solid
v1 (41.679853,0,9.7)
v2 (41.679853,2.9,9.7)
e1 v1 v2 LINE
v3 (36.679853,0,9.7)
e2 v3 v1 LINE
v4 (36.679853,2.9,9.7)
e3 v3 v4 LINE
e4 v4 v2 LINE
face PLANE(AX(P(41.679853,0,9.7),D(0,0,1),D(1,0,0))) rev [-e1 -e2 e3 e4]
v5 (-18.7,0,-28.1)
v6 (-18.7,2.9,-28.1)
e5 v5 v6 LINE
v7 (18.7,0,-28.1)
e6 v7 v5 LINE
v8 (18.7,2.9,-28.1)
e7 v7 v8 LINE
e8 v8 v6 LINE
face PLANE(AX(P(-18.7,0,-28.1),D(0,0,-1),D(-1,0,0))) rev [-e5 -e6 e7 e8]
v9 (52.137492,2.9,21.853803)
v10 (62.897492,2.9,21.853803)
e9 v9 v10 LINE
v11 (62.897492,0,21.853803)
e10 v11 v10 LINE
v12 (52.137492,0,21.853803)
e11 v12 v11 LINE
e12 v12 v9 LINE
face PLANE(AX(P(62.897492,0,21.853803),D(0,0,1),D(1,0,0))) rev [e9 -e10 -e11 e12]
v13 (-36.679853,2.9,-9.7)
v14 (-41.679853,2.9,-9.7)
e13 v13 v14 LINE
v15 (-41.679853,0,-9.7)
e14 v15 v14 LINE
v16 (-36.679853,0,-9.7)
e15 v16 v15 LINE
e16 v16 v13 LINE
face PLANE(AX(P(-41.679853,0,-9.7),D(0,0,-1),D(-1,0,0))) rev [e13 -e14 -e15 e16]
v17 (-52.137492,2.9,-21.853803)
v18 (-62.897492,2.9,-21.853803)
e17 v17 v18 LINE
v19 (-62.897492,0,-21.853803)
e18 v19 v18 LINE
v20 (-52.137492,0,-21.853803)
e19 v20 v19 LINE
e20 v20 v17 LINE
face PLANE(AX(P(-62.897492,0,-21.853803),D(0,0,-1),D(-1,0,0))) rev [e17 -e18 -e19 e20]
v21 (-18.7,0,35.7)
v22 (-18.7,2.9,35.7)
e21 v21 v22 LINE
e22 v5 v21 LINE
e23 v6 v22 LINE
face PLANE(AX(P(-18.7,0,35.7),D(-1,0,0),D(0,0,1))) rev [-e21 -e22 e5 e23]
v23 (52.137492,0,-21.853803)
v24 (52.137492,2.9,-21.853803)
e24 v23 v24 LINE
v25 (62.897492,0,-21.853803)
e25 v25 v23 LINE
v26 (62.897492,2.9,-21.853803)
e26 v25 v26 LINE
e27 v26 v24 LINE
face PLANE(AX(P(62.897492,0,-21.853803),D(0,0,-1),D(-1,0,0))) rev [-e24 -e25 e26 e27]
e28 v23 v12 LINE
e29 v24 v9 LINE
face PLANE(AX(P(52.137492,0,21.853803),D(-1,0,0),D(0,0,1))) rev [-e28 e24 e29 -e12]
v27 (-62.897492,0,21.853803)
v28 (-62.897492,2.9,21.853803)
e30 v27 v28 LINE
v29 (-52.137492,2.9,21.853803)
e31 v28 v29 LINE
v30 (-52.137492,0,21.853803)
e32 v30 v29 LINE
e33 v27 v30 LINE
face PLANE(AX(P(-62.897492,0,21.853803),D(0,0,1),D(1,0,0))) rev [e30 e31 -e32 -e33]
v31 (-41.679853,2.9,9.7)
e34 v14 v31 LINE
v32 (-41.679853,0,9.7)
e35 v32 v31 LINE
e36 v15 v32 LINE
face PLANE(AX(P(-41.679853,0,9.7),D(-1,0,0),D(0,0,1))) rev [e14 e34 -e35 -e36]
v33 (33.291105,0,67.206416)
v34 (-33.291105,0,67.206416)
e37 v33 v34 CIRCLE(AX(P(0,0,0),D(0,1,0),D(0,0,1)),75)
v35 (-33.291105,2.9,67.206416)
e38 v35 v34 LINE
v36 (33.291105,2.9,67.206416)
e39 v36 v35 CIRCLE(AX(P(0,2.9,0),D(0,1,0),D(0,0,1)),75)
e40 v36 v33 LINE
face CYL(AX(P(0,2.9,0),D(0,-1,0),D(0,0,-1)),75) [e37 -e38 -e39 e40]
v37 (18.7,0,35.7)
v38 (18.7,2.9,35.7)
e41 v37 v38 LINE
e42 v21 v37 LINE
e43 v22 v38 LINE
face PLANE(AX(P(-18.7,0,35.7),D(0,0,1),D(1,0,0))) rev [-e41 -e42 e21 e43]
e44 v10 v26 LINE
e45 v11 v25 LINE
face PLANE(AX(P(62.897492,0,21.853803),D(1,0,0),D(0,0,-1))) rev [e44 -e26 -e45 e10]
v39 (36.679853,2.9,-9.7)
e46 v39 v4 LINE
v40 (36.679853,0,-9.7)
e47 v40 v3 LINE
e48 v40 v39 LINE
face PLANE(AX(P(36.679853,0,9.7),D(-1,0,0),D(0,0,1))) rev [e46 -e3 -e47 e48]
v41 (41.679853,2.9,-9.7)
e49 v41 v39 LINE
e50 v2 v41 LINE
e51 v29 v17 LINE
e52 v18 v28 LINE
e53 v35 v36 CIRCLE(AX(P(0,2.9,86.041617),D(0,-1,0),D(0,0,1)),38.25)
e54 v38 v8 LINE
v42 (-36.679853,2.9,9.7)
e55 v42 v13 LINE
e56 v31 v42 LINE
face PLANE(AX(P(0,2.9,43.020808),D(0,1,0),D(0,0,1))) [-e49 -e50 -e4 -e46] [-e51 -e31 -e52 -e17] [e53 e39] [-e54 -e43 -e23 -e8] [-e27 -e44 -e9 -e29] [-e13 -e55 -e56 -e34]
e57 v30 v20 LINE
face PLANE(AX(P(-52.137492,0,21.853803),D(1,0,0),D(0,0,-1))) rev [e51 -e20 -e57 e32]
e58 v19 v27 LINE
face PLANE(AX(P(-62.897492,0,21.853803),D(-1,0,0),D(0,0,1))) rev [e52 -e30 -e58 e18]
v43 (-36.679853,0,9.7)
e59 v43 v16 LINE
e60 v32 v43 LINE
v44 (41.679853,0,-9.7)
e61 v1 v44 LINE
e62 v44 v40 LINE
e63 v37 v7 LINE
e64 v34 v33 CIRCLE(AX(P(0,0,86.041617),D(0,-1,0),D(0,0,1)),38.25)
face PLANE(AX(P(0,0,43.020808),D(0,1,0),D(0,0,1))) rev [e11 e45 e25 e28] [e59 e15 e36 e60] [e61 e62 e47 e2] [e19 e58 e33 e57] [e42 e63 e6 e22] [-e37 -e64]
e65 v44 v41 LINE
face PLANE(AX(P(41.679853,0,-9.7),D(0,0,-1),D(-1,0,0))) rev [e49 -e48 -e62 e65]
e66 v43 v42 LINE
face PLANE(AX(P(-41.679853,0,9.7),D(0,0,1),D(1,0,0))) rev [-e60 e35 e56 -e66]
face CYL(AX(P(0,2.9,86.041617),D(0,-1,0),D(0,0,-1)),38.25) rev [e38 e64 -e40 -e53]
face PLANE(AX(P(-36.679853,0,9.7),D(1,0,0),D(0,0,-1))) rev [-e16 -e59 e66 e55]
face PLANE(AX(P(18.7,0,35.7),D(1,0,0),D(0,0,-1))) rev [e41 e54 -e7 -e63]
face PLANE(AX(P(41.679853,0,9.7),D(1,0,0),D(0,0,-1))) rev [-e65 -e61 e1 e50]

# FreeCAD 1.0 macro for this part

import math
import FreeCAD as App
import Part
import Sketcher
Q = App.Units.Quantity


def add_polygon(sketch, points):
    """Adds a closed chain of lines whose ends are joined by coincident constraints."""
    first, n = sketch.GeometryCount, len(points)
    for a, b in zip(points, points[1:] + points[:1]):
        sketch.addGeometry(Part.LineSegment(App.Vector(*a, 0), App.Vector(*b, 0)), False)
    for i in range(n):
        sketch.addConstraint(Sketcher.Constraint("Coincident", first + i, 2, first + (i + 1) % n, 1))

doc = App.newDocument("Part")
params = doc.addObject("Spreadsheet::Sheet", "Params")
for row, (alias, value) in enumerate([
    ("sketch1_radius", "75 mm"),
    ("sketch1_radius2", "38.25 mm"),
    ("pad1_length", "2.9 mm"),
    ("sketch2_width", "37.4 mm"),
    ("sketch2_height", "63.8 mm"),
    ("sketch3_width", "10.76 mm"),
    ("sketch4_width", "5 mm"),
    ("sketch4_height", "19.4 mm"),
], start=1):
    params.set(f"A{row}", alias)
    params.set(f"B{row}", "=" + value)
    params.setAlias(f"B{row}", alias)

body = doc.addObject("PartDesign::Body", "Body")

# Sketch on XZ plane
sketch1 = body.newObject("Sketcher::SketchObject", "Sketch")
sketch1.AttachmentSupport = (doc.getObject("XZ_Plane"), [""])
sketch1.MapMode = "FlatFace"
sketch1.addGeometry([
    Part.ArcOfCircle(Part.Circle(App.Vector(0, 0, 0), App.Vector(0, 0, 1), 75), math.radians(116), math.radians(424)),
    Part.ArcOfCircle(Part.Circle(App.Vector(0, 86, 0), App.Vector(0, 0, 1), 38), math.radians(-150), math.radians(-30)),
], False)
sketch1.addConstraint([
    Sketcher.Constraint("Coincident", 0, 1, 1, 1),
    Sketcher.Constraint("Coincident", 1, 2, 0, 2),
    Sketcher.Constraint("Coincident", 0, 3, -1, 1),
    Sketcher.Constraint("PointOnObject", 1, 3, -2),
    Sketcher.Constraint("Radius", 0, Q("75 mm")),
    Sketcher.Constraint("Radius", 1, Q("38.25 mm")),
    Sketcher.Constraint("DistanceY", 0, 1, 1, 3, Q("18.835201 mm")),
])
sketch1.setExpression("Constraints[4]", "Params.sketch1_radius")
sketch1.setExpression("Constraints[5]", "Params.sketch1_radius2")
pad1 = body.newObject("PartDesign::Pad", "Pad")
pad1.Profile = sketch1
pad1.setExpression("Length", "Params.pad1_length")
pad1.Reversed = True

# Sketch on XZ plane
sketch2 = body.newObject("Sketcher::SketchObject", "Sketch001")
sketch2.AttachmentSupport = (doc.getObject("XZ_Plane"), [""])
sketch2.MapMode = "FlatFace"
sketch2.AttachmentOffset = App.Placement(App.Vector(0, 0, -2.9), App.Rotation())
add_polygon(sketch2, [(-19, -28), (-19, 36), (19, 36), (19, -28)])  # lines 0-3
sketch2.addConstraint([
    Sketcher.Constraint("Vertical", 0),
    Sketcher.Constraint("Horizontal", 1),
    Sketcher.Constraint("Vertical", 2),
    Sketcher.Constraint("Horizontal", 3),
    Sketcher.Constraint("DistanceX", 1, 1, 1, 2, Q("37.4 mm")),
    Sketcher.Constraint("DistanceY", 0, 1, 0, 2, Q("63.8 mm")),
    Sketcher.Constraint("DistanceX", 0, 2, -1, 1, Q("18.7 mm")),
    Sketcher.Constraint("DistanceY", -1, 1, 0, 2, Q("35.7 mm")),
])
sketch2.setExpression("Constraints[8]", "Params.sketch2_width")
sketch2.setExpression("Constraints[9]", "Params.sketch2_height")
pocket1 = body.newObject("PartDesign::Pocket", "Pocket")
pocket1.Profile = sketch2
pocket1.Type = "ThroughAll"
pocket1.Reversed = True

# Sketch on XZ plane
sketch3 = body.newObject("Sketcher::SketchObject", "Sketch002")
sketch3.AttachmentSupport = (doc.getObject("XZ_Plane"), [""])
sketch3.MapMode = "FlatFace"
sketch3.AttachmentOffset = App.Placement(App.Vector(0, 0, -2.9), App.Rotation())
add_polygon(sketch3, [(52, -22), (52, 22), (63, 22), (63, -22)])  # lines 0-3
add_polygon(sketch3, [(-63, -22), (-63, 22), (-52, 22), (-52, -22)])  # lines 4-7
sketch3.addConstraint([
    Sketcher.Constraint("Vertical", 0),
    Sketcher.Constraint("Horizontal", 1),
    Sketcher.Constraint("Vertical", 2),
    Sketcher.Constraint("Horizontal", 3),
    Sketcher.Constraint("Vertical", 4),
    Sketcher.Constraint("Horizontal", 5),
    Sketcher.Constraint("Vertical", 6),
    Sketcher.Constraint("Horizontal", 7),
    Sketcher.Constraint("Symmetric", 2, 2, 4, 2, -1, 1),
    Sketcher.Constraint("Symmetric", 0, 2, 6, 2, -1, 1),
    Sketcher.Constraint("Horizontal", 1, 2, 4, 2),
    Sketcher.Constraint("DistanceX", 1, 1, 1, 2, Q("10.76 mm")),
    Sketcher.Constraint("DistanceY", 0, 1, 0, 2, Q("43.707605 mm")),
    Sketcher.Constraint("DistanceX", -1, 1, 0, 2, Q("52.137492 mm")),
])
sketch3.setExpression("Constraints[19]", "Params.sketch3_width")
pocket2 = body.newObject("PartDesign::Pocket", "Pocket001")
pocket2.Profile = sketch3
pocket2.Type = "ThroughAll"
pocket2.Reversed = True

# Sketch on XZ plane
sketch4 = body.newObject("Sketcher::SketchObject", "Sketch003")
sketch4.AttachmentSupport = (doc.getObject("XZ_Plane"), [""])
sketch4.MapMode = "FlatFace"
sketch4.AttachmentOffset = App.Placement(App.Vector(0, 0, -2.9), App.Rotation())
add_polygon(sketch4, [(-42, -10), (-42, 10), (-37, 10), (-37, -10)])  # lines 0-3
add_polygon(sketch4, [(37, -10), (37, 10), (42, 10), (42, -10)])  # lines 4-7
sketch4.addConstraint([
    Sketcher.Constraint("Vertical", 0),
    Sketcher.Constraint("Horizontal", 1),
    Sketcher.Constraint("Vertical", 2),
    Sketcher.Constraint("Horizontal", 3),
    Sketcher.Constraint("Vertical", 4),
    Sketcher.Constraint("Horizontal", 5),
    Sketcher.Constraint("Vertical", 6),
    Sketcher.Constraint("Horizontal", 7),
    Sketcher.Constraint("Symmetric", 2, 2, 4, 2, -1, 1),
    Sketcher.Constraint("Symmetric", 0, 2, 6, 2, -1, 1),
    Sketcher.Constraint("Horizontal", 1, 2, 4, 2),
    Sketcher.Constraint("DistanceX", 1, 1, 1, 2, Q("5 mm")),
    Sketcher.Constraint("DistanceY", 0, 1, 0, 2, Q("19.4 mm")),
    Sketcher.Constraint("DistanceX", 0, 2, -1, 1, Q("41.679853 mm")),
])
sketch4.setExpression("Constraints[19]", "Params.sketch4_width")
sketch4.setExpression("Constraints[20]", "Params.sketch4_height")
pocket3 = body.newObject("PartDesign::Pocket", "Pocket002")
pocket3.Profile = sketch4
pocket3.Type = "ThroughAll"
pocket3.Reversed = True

doc.recompute()
